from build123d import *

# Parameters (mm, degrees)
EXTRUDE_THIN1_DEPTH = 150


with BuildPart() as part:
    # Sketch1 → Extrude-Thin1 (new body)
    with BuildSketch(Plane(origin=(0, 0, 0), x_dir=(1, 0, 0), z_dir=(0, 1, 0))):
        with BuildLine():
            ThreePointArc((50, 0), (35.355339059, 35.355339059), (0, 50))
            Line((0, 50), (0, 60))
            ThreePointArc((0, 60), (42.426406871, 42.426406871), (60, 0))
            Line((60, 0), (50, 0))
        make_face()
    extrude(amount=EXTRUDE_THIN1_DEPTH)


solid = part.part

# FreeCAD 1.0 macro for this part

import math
import FreeCAD as App
import Part
import Sketcher
from FreeCAD import Vector
Q = App.Units.Quantity

doc = App.newDocument("Part")
body = doc.addObject("PartDesign::Body", "Body")

# Sketch on XZ plane
sketch1 = body.newObject("Sketcher::SketchObject", "Sketch")
sketch1.AttachmentSupport = (doc.getObject("XZ_Plane"), [""])
sketch1.MapMode = "FlatFace"
sketch1.addGeometry([
    Part.ArcOfCircle(Part.Circle(Vector(0, 0, 0), Vector(0, 0, 1), 50), math.radians(-90), math.radians(0)),
    Part.LineSegment(Vector(50, 0, 0), Vector(60, 0, 0)),
    Part.ArcOfCircle(Part.Circle(Vector(0, 0, 0), Vector(0, 0, 1), 60), math.radians(-90), math.radians(0)),
    Part.LineSegment(Vector(0, -60, 0), Vector(0, -50, 0)),
], False)
sketch1.addConstraint([
    Sketcher.Constraint("Coincident", 0, 2, 1, 1),
    Sketcher.Constraint("Coincident", 1, 2, 2, 2),
    Sketcher.Constraint("Coincident", 2, 1, 3, 1),
    Sketcher.Constraint("Coincident", 3, 2, 0, 1),
    Sketcher.Constraint("Horizontal", 1),
    Sketcher.Constraint("Vertical", 3),
    Sketcher.Constraint("Coincident", 0, 3, -1, 1),
    Sketcher.Constraint("Coincident", 2, 3, -1, 1),
    Sketcher.Constraint("PointOnObject", 0, 2, -1),
    Sketcher.Constraint("PointOnObject", 2, 1, -2),
    Sketcher.Constraint("Radius", 0, Q("50 mm")),
    Sketcher.Constraint("Radius", 2, Q("60 mm")),
])
pad1 = body.newObject("PartDesign::Pad", "Pad")
pad1.Profile = sketch1
pad1.Length = 150
pad1.Reversed = True

doc.recompute()
